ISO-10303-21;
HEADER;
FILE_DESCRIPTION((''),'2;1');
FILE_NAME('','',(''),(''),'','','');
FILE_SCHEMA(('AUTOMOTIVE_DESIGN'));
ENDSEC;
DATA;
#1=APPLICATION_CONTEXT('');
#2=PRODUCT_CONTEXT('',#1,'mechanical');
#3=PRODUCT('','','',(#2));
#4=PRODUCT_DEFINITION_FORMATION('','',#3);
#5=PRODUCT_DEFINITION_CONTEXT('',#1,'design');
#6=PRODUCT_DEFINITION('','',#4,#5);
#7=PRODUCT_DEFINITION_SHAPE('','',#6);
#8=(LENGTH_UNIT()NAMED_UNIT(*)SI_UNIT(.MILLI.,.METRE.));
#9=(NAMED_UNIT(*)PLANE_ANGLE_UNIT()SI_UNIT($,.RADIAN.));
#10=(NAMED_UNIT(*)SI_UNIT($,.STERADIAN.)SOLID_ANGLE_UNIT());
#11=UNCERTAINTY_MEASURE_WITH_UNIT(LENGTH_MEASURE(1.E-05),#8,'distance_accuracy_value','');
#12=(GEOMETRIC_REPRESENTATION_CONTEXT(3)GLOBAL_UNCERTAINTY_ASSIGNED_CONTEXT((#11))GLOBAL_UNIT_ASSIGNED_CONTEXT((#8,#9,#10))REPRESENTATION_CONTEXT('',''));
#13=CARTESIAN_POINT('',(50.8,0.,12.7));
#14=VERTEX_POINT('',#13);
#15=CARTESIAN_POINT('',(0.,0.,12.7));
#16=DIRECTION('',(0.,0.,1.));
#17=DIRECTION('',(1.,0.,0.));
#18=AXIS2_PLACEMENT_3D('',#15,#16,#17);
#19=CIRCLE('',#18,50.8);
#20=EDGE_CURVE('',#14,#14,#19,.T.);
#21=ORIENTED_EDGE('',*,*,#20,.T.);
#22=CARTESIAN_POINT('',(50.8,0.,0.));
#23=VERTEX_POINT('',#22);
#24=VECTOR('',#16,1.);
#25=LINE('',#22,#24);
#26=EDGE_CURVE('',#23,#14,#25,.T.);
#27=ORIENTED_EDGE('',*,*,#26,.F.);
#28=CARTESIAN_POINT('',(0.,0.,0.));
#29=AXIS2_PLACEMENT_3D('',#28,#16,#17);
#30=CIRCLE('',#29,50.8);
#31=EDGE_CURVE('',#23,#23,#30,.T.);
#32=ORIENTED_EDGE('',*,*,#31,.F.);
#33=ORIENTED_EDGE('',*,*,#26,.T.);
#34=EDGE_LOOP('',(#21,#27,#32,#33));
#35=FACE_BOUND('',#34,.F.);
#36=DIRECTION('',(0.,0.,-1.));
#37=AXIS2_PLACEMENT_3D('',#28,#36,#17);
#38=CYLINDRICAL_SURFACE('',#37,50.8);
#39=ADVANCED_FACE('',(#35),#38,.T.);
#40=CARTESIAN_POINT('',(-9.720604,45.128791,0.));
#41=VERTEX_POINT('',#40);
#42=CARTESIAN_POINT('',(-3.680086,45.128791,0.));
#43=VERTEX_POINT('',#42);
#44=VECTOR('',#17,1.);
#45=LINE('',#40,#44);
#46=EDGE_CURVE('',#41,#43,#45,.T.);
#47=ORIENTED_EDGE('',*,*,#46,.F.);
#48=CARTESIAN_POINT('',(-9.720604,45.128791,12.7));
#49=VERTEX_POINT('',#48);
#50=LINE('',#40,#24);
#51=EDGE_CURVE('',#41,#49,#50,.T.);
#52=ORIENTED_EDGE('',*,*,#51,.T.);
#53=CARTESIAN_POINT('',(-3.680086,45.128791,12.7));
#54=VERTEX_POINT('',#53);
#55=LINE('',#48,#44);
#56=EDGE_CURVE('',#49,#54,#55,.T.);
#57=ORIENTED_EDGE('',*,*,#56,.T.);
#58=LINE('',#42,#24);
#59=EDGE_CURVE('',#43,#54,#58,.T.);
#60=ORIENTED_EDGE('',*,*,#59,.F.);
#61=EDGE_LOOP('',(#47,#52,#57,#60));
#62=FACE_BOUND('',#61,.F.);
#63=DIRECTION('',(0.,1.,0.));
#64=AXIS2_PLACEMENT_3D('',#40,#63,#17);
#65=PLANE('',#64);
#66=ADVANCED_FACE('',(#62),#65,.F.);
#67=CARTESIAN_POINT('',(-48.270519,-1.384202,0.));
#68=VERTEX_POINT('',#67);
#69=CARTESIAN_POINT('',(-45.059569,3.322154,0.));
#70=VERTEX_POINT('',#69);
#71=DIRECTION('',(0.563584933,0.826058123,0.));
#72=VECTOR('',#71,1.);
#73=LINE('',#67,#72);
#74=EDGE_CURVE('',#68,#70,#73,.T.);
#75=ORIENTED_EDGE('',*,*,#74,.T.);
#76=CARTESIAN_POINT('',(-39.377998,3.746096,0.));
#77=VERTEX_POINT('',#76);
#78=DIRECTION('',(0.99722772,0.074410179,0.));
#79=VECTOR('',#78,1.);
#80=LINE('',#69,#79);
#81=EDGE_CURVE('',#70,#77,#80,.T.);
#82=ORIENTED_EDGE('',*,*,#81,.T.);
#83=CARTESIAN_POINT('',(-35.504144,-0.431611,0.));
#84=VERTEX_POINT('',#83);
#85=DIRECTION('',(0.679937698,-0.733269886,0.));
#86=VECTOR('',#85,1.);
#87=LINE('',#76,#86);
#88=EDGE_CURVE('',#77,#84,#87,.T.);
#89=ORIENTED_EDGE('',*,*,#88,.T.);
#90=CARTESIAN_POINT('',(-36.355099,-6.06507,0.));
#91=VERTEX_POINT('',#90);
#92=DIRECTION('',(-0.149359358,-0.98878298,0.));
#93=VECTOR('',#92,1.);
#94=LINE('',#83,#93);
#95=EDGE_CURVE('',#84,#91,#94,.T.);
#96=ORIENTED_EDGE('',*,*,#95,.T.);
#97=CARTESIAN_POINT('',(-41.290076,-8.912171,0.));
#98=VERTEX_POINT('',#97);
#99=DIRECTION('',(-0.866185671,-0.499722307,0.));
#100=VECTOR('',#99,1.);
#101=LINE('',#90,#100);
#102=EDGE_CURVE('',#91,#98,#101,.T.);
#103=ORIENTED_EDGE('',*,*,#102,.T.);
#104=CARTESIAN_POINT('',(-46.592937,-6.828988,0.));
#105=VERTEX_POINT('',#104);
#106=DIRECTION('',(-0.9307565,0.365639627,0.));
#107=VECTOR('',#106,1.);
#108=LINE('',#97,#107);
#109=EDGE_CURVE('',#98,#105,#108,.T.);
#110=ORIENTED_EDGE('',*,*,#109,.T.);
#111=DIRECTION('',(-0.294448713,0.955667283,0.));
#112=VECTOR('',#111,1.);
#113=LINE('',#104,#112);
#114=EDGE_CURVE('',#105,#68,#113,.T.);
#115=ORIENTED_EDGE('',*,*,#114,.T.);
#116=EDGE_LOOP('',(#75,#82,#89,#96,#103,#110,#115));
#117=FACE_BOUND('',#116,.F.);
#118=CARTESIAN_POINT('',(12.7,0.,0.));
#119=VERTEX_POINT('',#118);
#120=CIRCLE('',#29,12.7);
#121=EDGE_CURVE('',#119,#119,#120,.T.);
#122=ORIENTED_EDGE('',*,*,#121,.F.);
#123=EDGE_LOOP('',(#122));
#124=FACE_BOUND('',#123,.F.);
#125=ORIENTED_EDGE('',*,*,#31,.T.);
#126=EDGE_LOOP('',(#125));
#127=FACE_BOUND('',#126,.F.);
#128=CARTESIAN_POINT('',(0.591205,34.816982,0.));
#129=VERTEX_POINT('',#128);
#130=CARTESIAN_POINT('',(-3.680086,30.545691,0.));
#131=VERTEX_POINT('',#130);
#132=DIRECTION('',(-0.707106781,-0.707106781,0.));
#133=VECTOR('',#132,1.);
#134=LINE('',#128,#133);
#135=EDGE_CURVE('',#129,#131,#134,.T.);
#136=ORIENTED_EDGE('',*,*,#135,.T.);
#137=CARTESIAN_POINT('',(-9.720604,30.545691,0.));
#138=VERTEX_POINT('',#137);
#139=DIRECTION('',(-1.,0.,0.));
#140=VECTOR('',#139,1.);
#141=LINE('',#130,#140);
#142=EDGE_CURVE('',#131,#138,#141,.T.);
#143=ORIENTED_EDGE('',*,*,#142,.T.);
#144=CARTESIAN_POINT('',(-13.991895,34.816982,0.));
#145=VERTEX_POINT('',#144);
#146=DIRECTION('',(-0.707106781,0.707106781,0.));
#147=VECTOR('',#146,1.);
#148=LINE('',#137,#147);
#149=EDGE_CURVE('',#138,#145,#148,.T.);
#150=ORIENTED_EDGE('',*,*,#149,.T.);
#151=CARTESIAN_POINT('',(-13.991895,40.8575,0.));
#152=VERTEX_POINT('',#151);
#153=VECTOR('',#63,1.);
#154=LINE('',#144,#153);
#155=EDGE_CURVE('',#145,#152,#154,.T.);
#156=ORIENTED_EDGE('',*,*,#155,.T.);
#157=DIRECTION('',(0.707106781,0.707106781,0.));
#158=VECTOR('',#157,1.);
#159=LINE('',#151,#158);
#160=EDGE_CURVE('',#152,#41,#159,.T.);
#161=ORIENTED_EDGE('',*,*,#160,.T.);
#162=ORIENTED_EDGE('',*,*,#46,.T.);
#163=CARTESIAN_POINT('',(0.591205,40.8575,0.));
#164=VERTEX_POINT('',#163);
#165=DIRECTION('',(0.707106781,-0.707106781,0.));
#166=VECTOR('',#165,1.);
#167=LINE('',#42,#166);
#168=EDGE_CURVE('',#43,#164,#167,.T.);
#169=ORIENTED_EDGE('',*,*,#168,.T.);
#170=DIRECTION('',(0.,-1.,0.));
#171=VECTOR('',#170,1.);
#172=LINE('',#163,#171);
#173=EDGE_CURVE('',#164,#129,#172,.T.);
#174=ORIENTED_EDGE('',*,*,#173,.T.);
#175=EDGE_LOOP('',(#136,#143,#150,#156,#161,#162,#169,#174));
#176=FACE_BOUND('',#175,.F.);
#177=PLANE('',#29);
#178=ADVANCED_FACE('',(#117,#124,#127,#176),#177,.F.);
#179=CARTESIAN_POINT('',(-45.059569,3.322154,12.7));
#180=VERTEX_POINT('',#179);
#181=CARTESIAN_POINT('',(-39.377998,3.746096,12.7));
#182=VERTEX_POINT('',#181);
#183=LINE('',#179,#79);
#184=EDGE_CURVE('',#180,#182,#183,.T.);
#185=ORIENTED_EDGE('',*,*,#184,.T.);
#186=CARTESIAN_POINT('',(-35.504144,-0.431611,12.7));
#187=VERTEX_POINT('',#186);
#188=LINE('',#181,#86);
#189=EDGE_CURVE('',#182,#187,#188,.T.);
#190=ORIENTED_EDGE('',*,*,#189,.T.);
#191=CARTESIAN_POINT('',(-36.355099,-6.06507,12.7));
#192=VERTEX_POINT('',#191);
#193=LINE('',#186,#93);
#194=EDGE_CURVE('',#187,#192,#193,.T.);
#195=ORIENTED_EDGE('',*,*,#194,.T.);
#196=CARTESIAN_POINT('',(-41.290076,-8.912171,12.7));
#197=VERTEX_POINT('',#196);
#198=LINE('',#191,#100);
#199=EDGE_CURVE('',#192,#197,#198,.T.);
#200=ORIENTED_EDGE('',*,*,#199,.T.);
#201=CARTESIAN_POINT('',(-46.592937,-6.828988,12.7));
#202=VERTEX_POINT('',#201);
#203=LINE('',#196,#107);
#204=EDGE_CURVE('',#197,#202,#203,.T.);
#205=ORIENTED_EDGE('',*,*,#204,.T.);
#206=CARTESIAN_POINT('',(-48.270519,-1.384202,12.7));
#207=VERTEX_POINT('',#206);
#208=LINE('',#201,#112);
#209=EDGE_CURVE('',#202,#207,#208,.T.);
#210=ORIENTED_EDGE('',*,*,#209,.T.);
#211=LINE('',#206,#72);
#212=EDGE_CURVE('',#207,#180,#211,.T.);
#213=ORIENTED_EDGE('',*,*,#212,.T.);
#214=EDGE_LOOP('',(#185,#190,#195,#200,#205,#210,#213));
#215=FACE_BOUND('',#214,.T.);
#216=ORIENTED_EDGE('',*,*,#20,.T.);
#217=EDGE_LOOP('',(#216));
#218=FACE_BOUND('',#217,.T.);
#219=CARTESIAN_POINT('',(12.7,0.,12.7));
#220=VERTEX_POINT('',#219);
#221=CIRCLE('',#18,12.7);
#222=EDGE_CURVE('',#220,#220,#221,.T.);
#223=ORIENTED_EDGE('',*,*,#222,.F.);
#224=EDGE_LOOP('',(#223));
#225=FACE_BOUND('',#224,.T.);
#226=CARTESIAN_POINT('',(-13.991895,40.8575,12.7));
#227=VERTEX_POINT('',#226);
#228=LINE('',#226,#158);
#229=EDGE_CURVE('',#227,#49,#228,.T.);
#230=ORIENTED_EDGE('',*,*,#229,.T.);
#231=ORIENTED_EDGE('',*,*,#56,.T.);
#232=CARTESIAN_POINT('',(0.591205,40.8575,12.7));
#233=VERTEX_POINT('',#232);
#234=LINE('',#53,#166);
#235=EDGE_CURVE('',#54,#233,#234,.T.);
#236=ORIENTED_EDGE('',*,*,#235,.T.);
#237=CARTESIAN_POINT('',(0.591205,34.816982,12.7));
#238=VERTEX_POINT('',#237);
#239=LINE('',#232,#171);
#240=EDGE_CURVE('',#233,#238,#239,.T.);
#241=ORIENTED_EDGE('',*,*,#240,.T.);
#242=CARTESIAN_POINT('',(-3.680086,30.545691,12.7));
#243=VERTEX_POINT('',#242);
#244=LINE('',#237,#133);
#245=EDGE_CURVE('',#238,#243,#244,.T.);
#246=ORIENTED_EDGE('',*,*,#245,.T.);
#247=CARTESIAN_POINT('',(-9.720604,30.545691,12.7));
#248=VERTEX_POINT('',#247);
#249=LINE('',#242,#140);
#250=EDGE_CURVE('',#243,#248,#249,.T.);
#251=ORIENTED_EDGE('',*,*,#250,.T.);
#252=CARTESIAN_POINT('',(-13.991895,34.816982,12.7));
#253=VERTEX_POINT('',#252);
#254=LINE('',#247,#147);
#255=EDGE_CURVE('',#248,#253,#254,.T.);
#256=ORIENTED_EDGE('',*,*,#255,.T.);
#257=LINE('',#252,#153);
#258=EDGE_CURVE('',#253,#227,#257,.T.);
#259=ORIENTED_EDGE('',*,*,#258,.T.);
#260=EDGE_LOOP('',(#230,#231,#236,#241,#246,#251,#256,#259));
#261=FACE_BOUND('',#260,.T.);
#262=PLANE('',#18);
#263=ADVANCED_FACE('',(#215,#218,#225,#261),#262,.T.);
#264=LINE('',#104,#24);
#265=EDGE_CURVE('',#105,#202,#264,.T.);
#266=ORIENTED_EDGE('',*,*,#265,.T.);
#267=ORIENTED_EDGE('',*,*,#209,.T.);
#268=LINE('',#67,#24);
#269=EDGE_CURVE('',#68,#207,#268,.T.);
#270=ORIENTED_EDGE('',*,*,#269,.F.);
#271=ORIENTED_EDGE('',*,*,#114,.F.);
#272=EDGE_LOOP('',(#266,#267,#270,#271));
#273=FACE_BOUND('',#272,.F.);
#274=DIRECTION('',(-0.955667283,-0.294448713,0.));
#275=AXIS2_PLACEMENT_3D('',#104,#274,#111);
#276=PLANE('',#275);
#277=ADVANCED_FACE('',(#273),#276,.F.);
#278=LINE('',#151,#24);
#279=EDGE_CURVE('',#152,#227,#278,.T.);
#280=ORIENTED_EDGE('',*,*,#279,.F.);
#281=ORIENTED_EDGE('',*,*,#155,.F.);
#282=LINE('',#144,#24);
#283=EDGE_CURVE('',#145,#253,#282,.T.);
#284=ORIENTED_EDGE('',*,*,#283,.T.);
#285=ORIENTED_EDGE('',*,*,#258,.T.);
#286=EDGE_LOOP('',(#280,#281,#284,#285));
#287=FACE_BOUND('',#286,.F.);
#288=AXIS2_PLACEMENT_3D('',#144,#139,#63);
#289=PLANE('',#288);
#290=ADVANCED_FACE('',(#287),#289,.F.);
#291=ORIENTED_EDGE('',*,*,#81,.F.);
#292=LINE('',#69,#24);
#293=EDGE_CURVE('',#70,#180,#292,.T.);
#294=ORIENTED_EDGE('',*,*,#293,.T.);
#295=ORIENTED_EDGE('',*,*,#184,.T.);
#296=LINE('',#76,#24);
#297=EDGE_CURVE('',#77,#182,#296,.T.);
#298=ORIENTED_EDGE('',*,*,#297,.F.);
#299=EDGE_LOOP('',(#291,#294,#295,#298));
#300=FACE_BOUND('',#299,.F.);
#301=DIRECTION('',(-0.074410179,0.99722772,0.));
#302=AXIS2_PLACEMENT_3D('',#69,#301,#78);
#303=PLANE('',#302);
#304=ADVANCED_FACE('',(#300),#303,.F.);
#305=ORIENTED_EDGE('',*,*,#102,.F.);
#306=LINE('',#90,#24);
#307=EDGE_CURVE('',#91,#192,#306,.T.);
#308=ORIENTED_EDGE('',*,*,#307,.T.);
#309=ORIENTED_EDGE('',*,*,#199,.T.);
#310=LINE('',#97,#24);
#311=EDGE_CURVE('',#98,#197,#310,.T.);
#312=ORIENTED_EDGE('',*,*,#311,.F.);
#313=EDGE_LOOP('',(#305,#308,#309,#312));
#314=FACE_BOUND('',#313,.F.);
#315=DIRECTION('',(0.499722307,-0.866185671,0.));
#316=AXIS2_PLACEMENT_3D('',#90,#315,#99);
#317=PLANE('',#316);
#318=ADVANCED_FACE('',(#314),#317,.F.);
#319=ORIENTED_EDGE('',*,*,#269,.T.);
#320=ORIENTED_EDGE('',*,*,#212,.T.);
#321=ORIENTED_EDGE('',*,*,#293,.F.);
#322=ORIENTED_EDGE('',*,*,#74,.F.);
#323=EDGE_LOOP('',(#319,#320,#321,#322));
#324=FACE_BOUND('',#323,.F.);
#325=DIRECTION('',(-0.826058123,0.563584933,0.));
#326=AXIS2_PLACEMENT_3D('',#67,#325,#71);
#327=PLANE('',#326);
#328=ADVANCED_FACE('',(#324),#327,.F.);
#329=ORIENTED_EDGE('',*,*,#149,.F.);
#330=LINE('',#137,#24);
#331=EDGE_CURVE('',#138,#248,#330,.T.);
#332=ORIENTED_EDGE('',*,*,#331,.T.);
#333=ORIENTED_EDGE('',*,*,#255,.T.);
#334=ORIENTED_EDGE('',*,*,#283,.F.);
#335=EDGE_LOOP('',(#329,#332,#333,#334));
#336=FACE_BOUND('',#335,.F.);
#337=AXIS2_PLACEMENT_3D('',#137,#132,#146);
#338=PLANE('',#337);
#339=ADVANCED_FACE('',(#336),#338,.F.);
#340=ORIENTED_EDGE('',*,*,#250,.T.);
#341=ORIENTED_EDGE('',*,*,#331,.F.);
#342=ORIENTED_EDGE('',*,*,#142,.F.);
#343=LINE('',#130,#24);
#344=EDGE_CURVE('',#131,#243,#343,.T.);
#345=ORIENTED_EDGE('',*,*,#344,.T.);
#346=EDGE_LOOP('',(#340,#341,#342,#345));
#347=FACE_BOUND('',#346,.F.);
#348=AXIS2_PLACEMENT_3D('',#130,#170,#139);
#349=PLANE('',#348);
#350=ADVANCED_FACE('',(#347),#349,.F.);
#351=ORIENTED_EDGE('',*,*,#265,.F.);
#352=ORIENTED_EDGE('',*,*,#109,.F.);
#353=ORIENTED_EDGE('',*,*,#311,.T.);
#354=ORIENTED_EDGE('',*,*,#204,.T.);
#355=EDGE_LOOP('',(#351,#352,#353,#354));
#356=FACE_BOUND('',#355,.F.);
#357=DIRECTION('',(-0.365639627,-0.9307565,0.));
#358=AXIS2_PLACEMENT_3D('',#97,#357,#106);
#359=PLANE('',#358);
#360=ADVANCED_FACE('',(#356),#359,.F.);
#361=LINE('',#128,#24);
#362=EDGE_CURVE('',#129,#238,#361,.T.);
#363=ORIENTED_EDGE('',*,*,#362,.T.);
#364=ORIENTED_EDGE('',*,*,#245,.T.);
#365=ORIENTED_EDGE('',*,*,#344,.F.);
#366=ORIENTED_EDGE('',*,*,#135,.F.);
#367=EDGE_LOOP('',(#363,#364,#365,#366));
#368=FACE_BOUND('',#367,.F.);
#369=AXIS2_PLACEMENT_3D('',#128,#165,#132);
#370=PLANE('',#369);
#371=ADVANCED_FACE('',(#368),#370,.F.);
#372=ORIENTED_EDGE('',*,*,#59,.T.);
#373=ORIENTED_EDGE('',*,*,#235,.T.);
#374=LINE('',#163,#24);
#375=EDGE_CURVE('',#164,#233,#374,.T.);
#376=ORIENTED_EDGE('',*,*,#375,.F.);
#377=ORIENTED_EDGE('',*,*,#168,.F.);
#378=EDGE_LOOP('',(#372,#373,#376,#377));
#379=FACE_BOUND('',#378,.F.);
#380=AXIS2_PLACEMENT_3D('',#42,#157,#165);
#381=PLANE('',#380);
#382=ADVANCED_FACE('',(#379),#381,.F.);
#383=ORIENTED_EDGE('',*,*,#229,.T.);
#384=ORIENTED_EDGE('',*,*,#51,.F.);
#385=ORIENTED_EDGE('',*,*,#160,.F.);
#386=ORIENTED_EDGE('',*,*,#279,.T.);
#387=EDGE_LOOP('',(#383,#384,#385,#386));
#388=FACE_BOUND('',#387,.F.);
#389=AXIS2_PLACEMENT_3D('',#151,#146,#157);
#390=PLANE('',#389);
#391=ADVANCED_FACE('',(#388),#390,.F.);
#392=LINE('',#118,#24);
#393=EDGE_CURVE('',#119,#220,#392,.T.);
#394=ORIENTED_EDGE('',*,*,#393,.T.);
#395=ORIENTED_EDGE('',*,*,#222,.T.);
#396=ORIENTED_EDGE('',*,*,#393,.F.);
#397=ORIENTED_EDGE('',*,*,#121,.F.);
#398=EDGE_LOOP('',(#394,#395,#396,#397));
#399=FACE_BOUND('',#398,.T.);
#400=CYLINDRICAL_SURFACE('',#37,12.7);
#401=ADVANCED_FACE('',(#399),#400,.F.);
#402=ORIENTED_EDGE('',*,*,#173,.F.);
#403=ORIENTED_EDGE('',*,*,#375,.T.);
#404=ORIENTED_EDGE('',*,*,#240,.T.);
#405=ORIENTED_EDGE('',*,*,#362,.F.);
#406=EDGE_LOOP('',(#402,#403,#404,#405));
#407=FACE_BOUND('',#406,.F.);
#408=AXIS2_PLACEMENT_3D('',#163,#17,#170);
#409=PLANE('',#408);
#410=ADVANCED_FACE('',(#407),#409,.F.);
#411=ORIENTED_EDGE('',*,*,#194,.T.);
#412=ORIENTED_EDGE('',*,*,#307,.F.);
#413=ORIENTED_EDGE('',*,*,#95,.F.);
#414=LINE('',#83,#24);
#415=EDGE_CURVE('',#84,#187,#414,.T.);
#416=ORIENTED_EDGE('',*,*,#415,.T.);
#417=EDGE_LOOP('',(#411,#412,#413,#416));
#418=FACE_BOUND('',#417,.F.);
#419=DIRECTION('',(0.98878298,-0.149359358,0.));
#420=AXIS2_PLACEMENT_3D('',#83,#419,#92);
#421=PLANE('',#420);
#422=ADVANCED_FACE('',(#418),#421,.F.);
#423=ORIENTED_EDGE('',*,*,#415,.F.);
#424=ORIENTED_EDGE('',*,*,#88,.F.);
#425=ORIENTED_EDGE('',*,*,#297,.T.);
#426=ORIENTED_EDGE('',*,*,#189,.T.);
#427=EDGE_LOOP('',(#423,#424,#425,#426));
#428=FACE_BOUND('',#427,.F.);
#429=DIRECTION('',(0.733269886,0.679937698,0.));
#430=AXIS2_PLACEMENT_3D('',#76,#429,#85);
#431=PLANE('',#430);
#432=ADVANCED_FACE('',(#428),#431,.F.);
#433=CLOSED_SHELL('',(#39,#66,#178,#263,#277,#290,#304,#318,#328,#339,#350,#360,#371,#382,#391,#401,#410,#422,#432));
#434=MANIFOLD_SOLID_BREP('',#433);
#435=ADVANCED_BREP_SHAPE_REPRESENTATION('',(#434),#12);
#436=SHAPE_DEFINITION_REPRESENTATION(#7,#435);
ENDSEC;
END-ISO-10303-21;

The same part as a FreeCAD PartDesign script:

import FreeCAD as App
import Part
import Sketcher
Q = App.Units.Quantity


def add_polygon(sketch, points):
    """Adds a closed chain of lines whose ends are joined by coincident constraints."""
    first, n = sketch.GeometryCount, len(points)
    for a, b in zip(points, points[1:] + points[:1]):
        sketch.addGeometry(Part.LineSegment(App.Vector(*a, 0), App.Vector(*b, 0)), False)
    for i in range(n):
        sketch.addConstraint(Sketcher.Constraint("Coincident", first + i, 2, first + (i + 1) % n, 1))

doc = App.newDocument("Part")
body = doc.addObject("PartDesign::Body", "Body")

# Sketch on XY plane
sketch1 = body.newObject("Sketcher::SketchObject", "Sketch")
sketch1.AttachmentSupport = (doc.getObject("XY_Plane"), [""])
sketch1.MapMode = "FlatFace"
sketch1.addGeometry(Part.Circle(App.Vector(0, 0, 0), App.Vector(0, 0, 1), 50.8), False)  # 0
add_polygon(sketch1, [(-39.377998, 3.746096), (-35.504144, -0.431611), (-36.355099, -6.06507), (-41.290076, -8.912171), (-46.592937, -6.828988), (-48.270519, -1.384202), (-45.059569, 3.322154)])  # lines 1-7
sketch1.addGeometry(Part.Circle(App.Vector(0, 0, 0), App.Vector(0, 0, 1), 12.7), False)  # 8
add_polygon(sketch1, [(0.591205, 40.8575), (0.591205, 34.816982), (-3.680086, 30.545691), (-9.720604, 30.545691), (-13.991895, 34.816982), (-13.991895, 40.8575), (-9.720604, 45.128791), (-3.680086, 45.128791)])  # lines 9-16
sketch1.addConstraint(Sketcher.Constraint("Vertical", 9))
sketch1.addConstraint(Sketcher.Constraint("Horizontal", 11))
sketch1.addConstraint(Sketcher.Constraint("Vertical", 13))
sketch1.addConstraint(Sketcher.Constraint("Horizontal", 15))
sketch1.addConstraint(Sketcher.Constraint("Coincident", 0, 3, -1, 1))
sketch1.addConstraint(Sketcher.Constraint("Coincident", 8, 3, -1, 1))
sketch1.addConstraint(Sketcher.Constraint("Perpendicular", 10, 12))
sketch1.addConstraint(Sketcher.Constraint("Perpendicular", 12, 14))
sketch1.addConstraint(Sketcher.Constraint("Perpendicular", 14, 16))
sketch1.addConstraint(Sketcher.Constraint("Horizontal", 9, 2, 12, 2))
sketch1.addConstraint(Sketcher.Constraint("Horizontal", 13, 2, 16, 2))
sketch1.addConstraint(Sketcher.Constraint("Vertical", 11, 2, 14, 2))
sketch1.addConstraint(Sketcher.Constraint("Vertical", 10, 2, 15, 2))
sketch1.addConstraint(Sketcher.Constraint("Equal", 15, 9))
sketch1.addConstraint(Sketcher.Constraint("Equal", 1, 2))
sketch1.addConstraint(Sketcher.Constraint("Equal", 2, 3))
sketch1.addConstraint(Sketcher.Constraint("Equal", 3, 4))
sketch1.addConstraint(Sketcher.Constraint("Equal", 4, 5))
sketch1.addConstraint(Sketcher.Constraint("Equal", 5, 6))
sketch1.addConstraint(Sketcher.Constraint("Equal", 6, 7))
sketch1.addConstraint(Sketcher.Constraint("Diameter", 0, Q("4 in")))
sketch1.addConstraint(Sketcher.Constraint("Diameter", 8, Q("1 in")))
sketch1.addConstraint(Sketcher.Constraint("DistanceX", 2, 2, -1, 1, Q("36.355099 mm")))
sketch1.addConstraint(Sketcher.Constraint("DistanceY", 5, 2, -1, 1, Q("1.384202 mm")))
sketch1.addConstraint(Sketcher.Constraint("DistanceY", -1, 1, 13, 2, Q("40.8575 mm")))
sketch1.addConstraint(Sketcher.Constraint("DistanceY", 3, 2, 2, 2, Q("2.847101 mm")))
sketch1.addConstraint(Sketcher.Constraint("DistanceX", 7, 2, 2, 2, Q("3.022899 mm")))
sketch1.addConstraint(Sketcher.Constraint("DistanceX", 12, 2, 9, 2, Q("14.5831 mm")))
sketch1.addConstraint(Sketcher.Constraint("DistanceX", 11, 2, 11, 1, Q("6.040518 mm")))
sketch1.addConstraint(Sketcher.Constraint("DistanceY", 1, 2, -1, 1, Q("0.431611 mm")))
sketch1.addConstraint(Sketcher.Constraint("DistanceY", 2, 2, -1, 1, Q("6.06507 mm")))
sketch1.addConstraint(Sketcher.Constraint("DistanceX", 5, 2, -1, 1, Q("48.270519 mm")))
sketch1.addConstraint(Sketcher.Constraint("DistanceX", 6, 2, -1, 1, Q("45.059569 mm")))
sketch1.addConstraint(Sketcher.Constraint("DistanceX", 1, 2, 9, 2, Q("36.095349 mm")))
pad1 = body.newObject("PartDesign::Pad", "Pad")
pad1.Profile = sketch1
pad1.Length = Q("0.5 in")

doc.recompute()
